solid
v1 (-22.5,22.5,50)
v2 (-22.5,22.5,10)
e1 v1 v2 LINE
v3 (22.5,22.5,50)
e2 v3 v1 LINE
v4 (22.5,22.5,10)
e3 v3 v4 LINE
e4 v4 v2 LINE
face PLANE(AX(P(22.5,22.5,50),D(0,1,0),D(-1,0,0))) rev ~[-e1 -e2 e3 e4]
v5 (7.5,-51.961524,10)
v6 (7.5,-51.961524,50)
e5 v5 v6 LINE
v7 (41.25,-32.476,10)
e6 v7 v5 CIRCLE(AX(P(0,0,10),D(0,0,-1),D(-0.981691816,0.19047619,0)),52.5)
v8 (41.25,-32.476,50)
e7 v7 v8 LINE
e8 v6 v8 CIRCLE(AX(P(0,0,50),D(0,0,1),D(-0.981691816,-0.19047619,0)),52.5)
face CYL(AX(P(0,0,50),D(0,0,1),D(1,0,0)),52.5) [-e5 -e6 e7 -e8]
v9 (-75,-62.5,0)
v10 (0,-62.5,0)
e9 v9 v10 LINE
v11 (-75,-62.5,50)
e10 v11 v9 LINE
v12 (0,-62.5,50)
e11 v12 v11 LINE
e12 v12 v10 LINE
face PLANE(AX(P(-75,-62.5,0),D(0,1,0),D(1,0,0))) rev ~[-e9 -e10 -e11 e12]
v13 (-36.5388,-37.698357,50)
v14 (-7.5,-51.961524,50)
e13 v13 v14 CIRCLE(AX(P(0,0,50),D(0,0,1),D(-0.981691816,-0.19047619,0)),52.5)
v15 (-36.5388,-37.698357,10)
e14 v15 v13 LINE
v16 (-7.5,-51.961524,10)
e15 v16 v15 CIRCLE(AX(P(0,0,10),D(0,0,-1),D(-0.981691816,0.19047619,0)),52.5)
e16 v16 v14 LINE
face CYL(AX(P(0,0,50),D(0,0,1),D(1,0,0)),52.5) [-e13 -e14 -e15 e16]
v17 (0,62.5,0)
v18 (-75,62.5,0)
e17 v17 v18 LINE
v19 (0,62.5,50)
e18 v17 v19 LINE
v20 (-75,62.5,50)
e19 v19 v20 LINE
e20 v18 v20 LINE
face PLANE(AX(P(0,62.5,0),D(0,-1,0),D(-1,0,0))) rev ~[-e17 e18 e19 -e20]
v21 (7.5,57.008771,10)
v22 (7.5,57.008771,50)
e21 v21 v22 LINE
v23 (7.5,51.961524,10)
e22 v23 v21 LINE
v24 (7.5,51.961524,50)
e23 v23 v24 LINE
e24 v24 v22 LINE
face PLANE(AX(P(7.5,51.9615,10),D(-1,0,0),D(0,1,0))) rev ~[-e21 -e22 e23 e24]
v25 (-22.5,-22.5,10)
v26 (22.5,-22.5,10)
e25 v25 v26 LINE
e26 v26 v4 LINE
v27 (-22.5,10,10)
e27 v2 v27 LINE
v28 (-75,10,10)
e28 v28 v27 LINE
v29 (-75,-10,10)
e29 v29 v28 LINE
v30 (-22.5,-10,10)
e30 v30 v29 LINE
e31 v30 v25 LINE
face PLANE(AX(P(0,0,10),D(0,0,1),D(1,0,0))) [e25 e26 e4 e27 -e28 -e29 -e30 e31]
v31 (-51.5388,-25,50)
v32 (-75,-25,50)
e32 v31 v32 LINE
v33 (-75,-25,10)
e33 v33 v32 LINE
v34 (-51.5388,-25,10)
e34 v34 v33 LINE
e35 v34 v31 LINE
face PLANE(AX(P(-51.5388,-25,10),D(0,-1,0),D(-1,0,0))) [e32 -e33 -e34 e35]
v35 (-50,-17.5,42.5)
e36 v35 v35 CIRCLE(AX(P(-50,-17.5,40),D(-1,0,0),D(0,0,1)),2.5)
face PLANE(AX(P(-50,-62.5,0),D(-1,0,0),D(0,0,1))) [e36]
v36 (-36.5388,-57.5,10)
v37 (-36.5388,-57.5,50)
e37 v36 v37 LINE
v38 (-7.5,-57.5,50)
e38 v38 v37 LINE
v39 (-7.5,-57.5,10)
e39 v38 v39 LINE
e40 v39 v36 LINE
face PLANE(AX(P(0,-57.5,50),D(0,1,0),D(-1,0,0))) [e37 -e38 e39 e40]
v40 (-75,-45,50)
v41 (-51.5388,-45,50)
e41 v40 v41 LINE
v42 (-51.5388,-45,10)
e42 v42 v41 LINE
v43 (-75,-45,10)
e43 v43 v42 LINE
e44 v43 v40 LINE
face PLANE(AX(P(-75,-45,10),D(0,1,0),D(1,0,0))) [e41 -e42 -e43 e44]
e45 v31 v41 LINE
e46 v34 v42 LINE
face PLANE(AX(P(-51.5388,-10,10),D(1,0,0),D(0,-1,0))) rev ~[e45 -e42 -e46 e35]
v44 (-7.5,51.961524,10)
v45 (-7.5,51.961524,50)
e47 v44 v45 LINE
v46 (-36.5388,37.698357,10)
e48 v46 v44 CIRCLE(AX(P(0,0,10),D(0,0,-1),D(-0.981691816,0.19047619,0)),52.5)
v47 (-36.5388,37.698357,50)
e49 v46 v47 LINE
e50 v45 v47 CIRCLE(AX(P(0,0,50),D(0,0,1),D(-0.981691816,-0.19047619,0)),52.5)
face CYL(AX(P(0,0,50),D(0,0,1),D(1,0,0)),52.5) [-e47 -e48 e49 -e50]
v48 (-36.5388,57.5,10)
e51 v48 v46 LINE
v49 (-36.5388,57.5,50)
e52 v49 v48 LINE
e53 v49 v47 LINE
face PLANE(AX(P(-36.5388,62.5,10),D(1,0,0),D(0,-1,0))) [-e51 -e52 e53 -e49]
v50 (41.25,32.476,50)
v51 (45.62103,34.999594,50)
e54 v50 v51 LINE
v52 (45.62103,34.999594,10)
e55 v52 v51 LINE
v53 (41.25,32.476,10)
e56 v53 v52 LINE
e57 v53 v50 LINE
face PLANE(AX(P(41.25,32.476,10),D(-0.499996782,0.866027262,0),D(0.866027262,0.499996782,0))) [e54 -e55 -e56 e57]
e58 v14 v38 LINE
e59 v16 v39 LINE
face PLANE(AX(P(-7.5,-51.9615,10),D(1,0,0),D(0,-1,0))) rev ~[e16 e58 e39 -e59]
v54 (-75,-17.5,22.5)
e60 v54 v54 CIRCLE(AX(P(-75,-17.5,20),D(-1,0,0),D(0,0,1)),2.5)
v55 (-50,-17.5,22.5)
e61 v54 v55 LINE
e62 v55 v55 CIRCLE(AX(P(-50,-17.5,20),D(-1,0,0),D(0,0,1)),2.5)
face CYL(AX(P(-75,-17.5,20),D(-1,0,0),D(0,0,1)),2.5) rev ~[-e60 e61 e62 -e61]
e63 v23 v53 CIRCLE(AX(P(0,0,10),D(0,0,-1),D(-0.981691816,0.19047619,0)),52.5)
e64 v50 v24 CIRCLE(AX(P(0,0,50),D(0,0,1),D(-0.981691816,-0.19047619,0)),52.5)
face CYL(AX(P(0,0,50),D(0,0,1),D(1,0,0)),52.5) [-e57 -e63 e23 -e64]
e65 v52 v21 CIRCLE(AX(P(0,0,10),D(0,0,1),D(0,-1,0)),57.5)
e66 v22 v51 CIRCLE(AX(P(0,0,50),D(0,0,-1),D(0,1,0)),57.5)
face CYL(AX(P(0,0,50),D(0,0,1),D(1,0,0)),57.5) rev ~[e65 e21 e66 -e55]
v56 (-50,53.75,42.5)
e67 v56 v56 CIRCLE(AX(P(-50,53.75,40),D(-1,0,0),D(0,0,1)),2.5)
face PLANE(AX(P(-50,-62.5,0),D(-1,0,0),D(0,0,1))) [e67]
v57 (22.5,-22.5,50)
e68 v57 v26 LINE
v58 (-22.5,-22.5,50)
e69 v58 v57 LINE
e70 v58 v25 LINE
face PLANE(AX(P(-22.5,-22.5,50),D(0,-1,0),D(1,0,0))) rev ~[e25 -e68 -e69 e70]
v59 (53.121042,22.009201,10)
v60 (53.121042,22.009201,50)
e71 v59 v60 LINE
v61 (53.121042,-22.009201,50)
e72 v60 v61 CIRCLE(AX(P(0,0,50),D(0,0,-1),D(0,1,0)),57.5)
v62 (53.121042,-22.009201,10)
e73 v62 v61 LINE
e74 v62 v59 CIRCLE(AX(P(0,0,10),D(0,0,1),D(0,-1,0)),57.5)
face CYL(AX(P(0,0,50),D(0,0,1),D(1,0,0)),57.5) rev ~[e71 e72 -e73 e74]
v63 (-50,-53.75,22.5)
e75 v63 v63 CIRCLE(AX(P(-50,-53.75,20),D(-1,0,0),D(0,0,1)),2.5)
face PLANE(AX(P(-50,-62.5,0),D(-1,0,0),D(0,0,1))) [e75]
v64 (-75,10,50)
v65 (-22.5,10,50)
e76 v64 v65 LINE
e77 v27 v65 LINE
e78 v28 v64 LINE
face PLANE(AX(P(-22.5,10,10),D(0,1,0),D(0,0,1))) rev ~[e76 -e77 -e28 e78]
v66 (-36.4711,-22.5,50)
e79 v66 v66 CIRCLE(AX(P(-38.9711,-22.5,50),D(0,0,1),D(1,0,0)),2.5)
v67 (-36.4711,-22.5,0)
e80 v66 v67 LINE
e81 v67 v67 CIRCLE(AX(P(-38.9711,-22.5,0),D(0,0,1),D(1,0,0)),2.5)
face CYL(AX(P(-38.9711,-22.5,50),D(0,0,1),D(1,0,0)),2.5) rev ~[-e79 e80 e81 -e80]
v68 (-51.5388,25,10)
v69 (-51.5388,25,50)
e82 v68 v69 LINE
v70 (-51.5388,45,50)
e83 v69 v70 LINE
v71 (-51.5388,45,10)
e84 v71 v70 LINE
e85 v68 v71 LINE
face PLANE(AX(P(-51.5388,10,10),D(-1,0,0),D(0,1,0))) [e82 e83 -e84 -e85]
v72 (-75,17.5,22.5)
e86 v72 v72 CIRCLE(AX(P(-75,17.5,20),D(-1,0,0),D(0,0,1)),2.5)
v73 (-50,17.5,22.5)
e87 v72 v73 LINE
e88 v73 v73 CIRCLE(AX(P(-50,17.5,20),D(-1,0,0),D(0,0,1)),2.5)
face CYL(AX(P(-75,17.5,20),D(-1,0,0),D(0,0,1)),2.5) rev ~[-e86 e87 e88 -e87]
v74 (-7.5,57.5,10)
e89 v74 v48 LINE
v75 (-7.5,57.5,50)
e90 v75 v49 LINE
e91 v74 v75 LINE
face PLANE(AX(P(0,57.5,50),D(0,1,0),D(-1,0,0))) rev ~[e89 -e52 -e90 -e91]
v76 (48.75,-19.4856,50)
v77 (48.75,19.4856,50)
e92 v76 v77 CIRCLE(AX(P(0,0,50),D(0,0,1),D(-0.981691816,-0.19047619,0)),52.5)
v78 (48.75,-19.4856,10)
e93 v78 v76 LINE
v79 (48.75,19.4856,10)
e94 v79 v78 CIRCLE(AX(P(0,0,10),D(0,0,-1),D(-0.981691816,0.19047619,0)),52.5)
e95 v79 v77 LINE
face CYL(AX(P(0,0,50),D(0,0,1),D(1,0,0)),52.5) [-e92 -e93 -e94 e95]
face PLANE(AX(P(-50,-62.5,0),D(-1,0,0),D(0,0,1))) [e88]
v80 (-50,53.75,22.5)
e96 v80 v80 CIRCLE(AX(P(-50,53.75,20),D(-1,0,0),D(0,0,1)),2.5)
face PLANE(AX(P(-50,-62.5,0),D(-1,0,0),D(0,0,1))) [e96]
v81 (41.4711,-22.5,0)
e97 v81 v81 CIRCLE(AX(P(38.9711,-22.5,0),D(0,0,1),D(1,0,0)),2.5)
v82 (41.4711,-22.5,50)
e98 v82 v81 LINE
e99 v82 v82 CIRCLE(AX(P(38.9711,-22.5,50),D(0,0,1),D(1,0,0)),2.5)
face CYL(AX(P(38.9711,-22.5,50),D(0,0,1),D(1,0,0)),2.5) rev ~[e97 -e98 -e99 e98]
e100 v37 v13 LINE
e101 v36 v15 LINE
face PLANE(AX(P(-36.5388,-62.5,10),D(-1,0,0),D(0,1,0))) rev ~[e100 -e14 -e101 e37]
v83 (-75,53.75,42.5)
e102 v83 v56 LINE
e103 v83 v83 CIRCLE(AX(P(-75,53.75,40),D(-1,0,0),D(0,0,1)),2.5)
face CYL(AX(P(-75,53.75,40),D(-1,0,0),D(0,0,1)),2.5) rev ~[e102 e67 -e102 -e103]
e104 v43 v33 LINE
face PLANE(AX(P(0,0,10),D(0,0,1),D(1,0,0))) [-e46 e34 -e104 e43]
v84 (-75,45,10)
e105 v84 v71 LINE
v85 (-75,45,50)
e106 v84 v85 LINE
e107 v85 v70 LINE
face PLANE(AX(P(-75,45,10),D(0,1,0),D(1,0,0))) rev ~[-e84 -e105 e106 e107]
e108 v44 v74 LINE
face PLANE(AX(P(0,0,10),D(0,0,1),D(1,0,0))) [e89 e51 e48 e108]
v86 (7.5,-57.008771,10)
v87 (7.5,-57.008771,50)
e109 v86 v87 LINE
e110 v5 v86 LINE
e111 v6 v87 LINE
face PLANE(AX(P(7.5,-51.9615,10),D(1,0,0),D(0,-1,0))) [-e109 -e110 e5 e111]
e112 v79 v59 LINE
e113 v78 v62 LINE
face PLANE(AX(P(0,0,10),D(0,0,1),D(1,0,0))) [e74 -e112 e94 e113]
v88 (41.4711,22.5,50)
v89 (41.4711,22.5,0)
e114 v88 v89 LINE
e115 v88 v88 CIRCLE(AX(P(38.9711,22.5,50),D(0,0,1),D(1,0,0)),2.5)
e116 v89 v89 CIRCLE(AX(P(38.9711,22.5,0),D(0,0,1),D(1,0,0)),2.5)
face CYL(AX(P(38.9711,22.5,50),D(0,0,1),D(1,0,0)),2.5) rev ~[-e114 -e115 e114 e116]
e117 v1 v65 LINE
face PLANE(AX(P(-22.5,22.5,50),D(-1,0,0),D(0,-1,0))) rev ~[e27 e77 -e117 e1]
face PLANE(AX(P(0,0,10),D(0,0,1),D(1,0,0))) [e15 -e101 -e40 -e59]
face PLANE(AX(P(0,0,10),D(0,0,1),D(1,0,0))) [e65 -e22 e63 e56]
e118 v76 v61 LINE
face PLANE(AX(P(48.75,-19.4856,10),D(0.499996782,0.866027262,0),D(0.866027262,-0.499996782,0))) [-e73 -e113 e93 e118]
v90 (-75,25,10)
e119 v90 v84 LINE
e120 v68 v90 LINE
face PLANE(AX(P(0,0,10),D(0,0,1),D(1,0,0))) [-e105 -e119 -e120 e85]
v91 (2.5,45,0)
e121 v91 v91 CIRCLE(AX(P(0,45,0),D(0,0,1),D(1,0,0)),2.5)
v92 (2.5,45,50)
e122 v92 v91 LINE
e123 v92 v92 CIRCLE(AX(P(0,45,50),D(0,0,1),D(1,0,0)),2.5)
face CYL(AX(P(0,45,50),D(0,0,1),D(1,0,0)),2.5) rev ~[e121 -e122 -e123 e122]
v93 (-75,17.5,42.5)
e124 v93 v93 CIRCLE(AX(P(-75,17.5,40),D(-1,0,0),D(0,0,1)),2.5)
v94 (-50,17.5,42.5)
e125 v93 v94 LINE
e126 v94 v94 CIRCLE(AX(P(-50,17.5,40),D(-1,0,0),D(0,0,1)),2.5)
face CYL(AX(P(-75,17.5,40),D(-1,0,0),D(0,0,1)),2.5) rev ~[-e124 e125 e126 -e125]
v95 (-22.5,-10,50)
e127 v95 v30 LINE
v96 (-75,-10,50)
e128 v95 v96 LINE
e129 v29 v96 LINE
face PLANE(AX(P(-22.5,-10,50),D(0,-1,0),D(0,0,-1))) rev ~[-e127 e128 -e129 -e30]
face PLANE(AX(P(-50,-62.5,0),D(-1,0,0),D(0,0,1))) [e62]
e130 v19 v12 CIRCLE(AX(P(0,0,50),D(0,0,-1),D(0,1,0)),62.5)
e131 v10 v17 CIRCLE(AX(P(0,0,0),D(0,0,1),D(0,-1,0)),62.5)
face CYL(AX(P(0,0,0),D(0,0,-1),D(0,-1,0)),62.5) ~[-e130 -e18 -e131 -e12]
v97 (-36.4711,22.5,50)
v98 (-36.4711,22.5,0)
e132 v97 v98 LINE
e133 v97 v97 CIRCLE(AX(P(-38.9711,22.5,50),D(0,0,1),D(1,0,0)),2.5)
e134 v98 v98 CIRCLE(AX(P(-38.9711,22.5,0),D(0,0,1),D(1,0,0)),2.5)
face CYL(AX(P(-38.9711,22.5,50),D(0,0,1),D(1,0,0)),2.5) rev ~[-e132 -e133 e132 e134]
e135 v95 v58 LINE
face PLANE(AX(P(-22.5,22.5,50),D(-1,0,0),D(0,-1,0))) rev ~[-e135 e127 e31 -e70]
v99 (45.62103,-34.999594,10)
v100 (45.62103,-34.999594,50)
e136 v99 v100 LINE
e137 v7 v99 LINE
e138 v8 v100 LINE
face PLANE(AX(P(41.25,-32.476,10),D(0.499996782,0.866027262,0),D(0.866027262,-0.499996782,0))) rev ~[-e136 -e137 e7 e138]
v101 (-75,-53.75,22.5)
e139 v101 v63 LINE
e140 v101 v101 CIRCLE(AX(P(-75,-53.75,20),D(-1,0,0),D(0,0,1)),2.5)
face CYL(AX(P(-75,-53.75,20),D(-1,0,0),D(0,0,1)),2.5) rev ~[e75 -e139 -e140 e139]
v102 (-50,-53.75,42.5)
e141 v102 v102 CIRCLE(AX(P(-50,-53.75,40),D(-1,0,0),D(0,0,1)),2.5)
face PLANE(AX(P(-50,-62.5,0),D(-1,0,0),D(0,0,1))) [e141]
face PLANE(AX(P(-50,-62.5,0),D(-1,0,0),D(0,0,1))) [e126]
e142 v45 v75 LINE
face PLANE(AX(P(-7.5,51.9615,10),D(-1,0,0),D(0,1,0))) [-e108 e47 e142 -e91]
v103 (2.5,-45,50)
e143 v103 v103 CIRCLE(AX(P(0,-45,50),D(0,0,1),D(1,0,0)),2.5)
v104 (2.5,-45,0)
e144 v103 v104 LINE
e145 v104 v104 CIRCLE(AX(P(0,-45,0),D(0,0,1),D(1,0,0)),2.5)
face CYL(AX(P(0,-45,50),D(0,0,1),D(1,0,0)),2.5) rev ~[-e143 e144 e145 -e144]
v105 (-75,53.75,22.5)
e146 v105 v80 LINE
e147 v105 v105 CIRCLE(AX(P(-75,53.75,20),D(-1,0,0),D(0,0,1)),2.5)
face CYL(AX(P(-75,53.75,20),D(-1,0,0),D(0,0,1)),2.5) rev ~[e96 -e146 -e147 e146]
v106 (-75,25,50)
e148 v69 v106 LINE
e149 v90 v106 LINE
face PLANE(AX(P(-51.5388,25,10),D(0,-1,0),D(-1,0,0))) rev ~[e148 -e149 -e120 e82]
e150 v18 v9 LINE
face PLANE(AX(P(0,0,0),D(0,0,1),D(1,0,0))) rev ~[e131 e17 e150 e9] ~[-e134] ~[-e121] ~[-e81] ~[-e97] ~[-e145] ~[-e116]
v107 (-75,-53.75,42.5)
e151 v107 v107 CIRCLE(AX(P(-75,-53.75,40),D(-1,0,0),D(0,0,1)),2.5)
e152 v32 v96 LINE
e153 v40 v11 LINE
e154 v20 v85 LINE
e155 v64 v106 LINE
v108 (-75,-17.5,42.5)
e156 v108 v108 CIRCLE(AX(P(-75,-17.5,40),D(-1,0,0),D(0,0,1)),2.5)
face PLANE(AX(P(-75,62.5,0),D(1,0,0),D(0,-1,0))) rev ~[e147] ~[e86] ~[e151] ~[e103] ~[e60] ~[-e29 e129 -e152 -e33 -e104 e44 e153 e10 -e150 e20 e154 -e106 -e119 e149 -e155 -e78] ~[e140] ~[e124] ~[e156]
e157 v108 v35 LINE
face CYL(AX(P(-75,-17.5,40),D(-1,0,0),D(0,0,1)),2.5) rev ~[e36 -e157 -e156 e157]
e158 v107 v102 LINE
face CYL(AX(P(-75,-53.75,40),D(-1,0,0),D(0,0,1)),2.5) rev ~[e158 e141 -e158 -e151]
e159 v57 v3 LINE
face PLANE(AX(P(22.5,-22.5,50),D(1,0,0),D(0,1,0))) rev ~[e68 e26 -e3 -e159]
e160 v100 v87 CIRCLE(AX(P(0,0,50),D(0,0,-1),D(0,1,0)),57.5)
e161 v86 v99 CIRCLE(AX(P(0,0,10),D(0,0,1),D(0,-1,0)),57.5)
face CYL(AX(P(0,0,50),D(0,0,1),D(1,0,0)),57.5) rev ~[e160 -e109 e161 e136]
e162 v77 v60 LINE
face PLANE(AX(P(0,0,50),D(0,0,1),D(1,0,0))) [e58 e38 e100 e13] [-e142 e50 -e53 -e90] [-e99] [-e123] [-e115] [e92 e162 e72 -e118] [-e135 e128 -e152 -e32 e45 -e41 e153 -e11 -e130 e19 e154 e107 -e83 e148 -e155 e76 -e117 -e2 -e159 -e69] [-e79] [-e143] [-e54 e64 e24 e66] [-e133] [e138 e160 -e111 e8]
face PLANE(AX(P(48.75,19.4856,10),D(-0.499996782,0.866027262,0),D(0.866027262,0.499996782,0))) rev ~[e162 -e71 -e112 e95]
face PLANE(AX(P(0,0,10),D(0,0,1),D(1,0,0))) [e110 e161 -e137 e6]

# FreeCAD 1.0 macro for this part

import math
import FreeCAD as App
import Part
import Sketcher

V = App.Vector
Q = App.Units.Quantity

doc = App.newDocument("Part")
body = doc.addObject("PartDesign::Body", "Body")

# Sketch on XY plane
sketch1 = body.newObject("Sketcher::SketchObject", "Sketch")
sketch1.AttachmentSupport = (doc.getObject("XY_Plane"), [""])
sketch1.MapMode = "FlatFace"
sketch1.addGeometry([
    Part.ArcOfCircle(Part.Circle(V(0, 0, 0), V(0, 0, 1), 62), math.radians(-90), math.radians(90)),
    Part.LineSegment(V(0, 62, 0), V(-75, 62, 0)),
    Part.LineSegment(V(-75, 62, 0), V(-75, -62, 0)),
    Part.LineSegment(V(-75, -62, 0), V(0, -62, 0)),
], False)
sketch1.addConstraint([
    Sketcher.Constraint("Tangent", 0, 2, 1, 1),
    Sketcher.Constraint("Coincident", 1, 2, 2, 1),
    Sketcher.Constraint("Coincident", 2, 2, 3, 1),
    Sketcher.Constraint("Tangent", 3, 2, 0, 1),
    Sketcher.Constraint("Horizontal", 1),
    Sketcher.Constraint("Vertical", 2),
    Sketcher.Constraint("Horizontal", 3),
    Sketcher.Constraint("Coincident", 0, 3, -1, 1),
    Sketcher.Constraint("Radius", 0, Q("62.5 mm")),
    Sketcher.Constraint("DistanceX", 1, 2, 1, 1, Q("75 mm")),
])
pad1 = body.newObject("PartDesign::Pad", "Pad")
pad1.Profile = sketch1
pad1.Length = 50

# Sketch on XY plane
sketch2 = body.newObject("Sketcher::SketchObject", "Sketch001")
sketch2.AttachmentSupport = (doc.getObject("XY_Plane"), [""])
sketch2.MapMode = "FlatFace"
sketch2.AttachmentOffset = App.Placement(V(0, 0, 50), App.Rotation())
sketch2.addGeometry([
    Part.LineSegment(V(-22, 22, 0), V(-22, -22, 0)),
    Part.LineSegment(V(-22, -22, 0), V(22, -22, 0)),
    Part.LineSegment(V(22, -22, 0), V(22, 22, 0)),
    Part.LineSegment(V(22, 22, 0), V(-22, 22, 0)),
], False)
sketch2.addConstraint([
    Sketcher.Constraint("Coincident", 0, 2, 1, 1),
    Sketcher.Constraint("Coincident", 1, 2, 2, 1),
    Sketcher.Constraint("Coincident", 2, 2, 3, 1),
    Sketcher.Constraint("Coincident", 3, 2, 0, 1),
    Sketcher.Constraint("Vertical", 0),
    Sketcher.Constraint("Horizontal", 1),
    Sketcher.Constraint("Vertical", 2),
    Sketcher.Constraint("Horizontal", 3),
    Sketcher.Constraint("Symmetric", 0, 2, 2, 2, -1, 1),
    Sketcher.Constraint("Equal", 3, 0),
    Sketcher.Constraint("DistanceX", 1, 1, 1, 2, Q("45 mm")),
])
pocket1 = body.newObject("PartDesign::Pocket", "Pocket")
pocket1.Profile = sketch2
pocket1.Length = 40

# Sketch on YZ plane
sketch3 = body.newObject("Sketcher::SketchObject", "Sketch002")
sketch3.AttachmentSupport = (doc.getObject("YZ_Plane"), [""])
sketch3.MapMode = "FlatFace"
sketch3.AttachmentOffset = App.Placement(V(0, 0, -22.5), App.Rotation())
sketch3.addGeometry([
    Part.LineSegment(V(-10, 10, 0), V(10, 10, 0)),
    Part.LineSegment(V(10, 10, 0), V(10, 50, 0)),
    Part.LineSegment(V(10, 50, 0), V(-10, 50, 0)),
    Part.LineSegment(V(-10, 50, 0), V(-10, 10, 0)),
], False)
sketch3.addConstraint([
    Sketcher.Constraint("Coincident", 0, 2, 1, 1),
    Sketcher.Constraint("Coincident", 1, 2, 2, 1),
    Sketcher.Constraint("Coincident", 2, 2, 3, 1),
    Sketcher.Constraint("Coincident", 3, 2, 0, 1),
    Sketcher.Constraint("Horizontal", 0),
    Sketcher.Constraint("Vertical", 1),
    Sketcher.Constraint("Horizontal", 2),
    Sketcher.Constraint("Vertical", 3),
    Sketcher.Constraint("DistanceX", 0, 1, 0, 2, Q("20 mm")),
    Sketcher.Constraint("DistanceY", 1, 1, 1, 2, Q("40 mm")),
    Sketcher.Constraint("DistanceX", -1, 1, 0, 2, Q("10 mm")),
    Sketcher.Constraint("DistanceY", -1, 1, 0, 2, Q("10 mm")),
])
pocket2 = body.newObject("PartDesign::Pocket", "Pocket001")
pocket2.Profile = sketch3
pocket2.Type = "ThroughAll"

# Sketch on XY plane
sketch4 = body.newObject("Sketcher::SketchObject", "Sketch003")
sketch4.AttachmentSupport = (doc.getObject("XY_Plane"), [""])
sketch4.MapMode = "FlatFace"
sketch4.AttachmentOffset = App.Placement(V(0, 0, 50), App.Rotation())
sketch4.addGeometry([
    Part.Circle(V(0, 45, 0), V(0, 0, 1), 2.5),  # 0
    Part.Circle(V(-39, 22.5, 0), V(0, 0, 1), 2.5),  # 1
    Part.Circle(V(-39, -22.5, 0), V(0, 0, 1), 2.5),  # 2
    Part.Circle(V(0, -45, 0), V(0, 0, 1), 2.5),  # 3
    Part.Circle(V(39, -22.5, 0), V(0, 0, 1), 2.5),  # 4
    Part.Circle(V(39, 22.5, 0), V(0, 0, 1), 2.5),  # 5
], False)
sketch4.addConstraint([
    Sketcher.Constraint("Equal", 0, 1),
    Sketcher.Constraint("Equal", 1, 2),
    Sketcher.Constraint("Equal", 2, 3),
    Sketcher.Constraint("Equal", 3, 4),
    Sketcher.Constraint("Equal", 4, 5),
    Sketcher.Constraint("Symmetric", 0, 3, 3, 3, -1, 1),
    Sketcher.Constraint("Symmetric", 1, 3, 4, 3, -1, 1),
    Sketcher.Constraint("Symmetric", 2, 3, 5, 3, -1, 1),
    Sketcher.Constraint("Symmetric", 2, 3, 4, 3, -2),
    Sketcher.Constraint("PointOnObject", 0, 3, -2),
    Sketcher.Constraint("Diameter", 0, Q("5 mm")),
    Sketcher.Constraint("DistanceY", -1, 1, 0, 3, Q("45 mm")),
    Sketcher.Constraint("DistanceY", 2, 3, 1, 3, Q("45 mm")),
    Sketcher.Constraint("DistanceX", 1, 3, -1, 1, Q("38.971 mm")),
])
pocket3 = body.newObject("PartDesign::Pocket", "Pocket002")
pocket3.Profile = sketch4
pocket3.Type = "ThroughAll"

# Sketch on XY plane
sketch5 = body.newObject("Sketcher::SketchObject", "Sketch004")
sketch5.AttachmentSupport = (doc.getObject("XY_Plane"), [""])
sketch5.MapMode = "FlatFace"
sketch5.AttachmentOffset = App.Placement(V(0, 0, 50), App.Rotation())
sketch5.addGeometry([
    Part.ArcOfCircle(Part.Circle(V(0, 0, 0), V(0, 0, 1), 58), math.radians(-90), math.radians(90)),  # 0
    Part.LineSegment(V(0, 58, 0), V(-75, 58, 0)),  # 1
    Part.LineSegment(V(-75, 58, 0), V(-75, -58, 0)),  # 2
    Part.LineSegment(V(-75, -58, 0), V(0, -58, 0)),  # 3
    Part.Circle(V(0, 0, 0), V(0, 0, 1), 52),  # 4
], False)
sketch5.addConstraint([
    Sketcher.Constraint("Tangent", 0, 2, 1, 1),
    Sketcher.Constraint("Coincident", 1, 2, 2, 1),
    Sketcher.Constraint("Coincident", 2, 2, 3, 1),
    Sketcher.Constraint("Tangent", 3, 2, 0, 1),
    Sketcher.Constraint("Horizontal", 1),
    Sketcher.Constraint("Vertical", 2),
    Sketcher.Constraint("Horizontal", 3),
    Sketcher.Constraint("Coincident", 0, 3, -1, 1),
    Sketcher.Constraint("Coincident", 4, 3, -1, 1),
    Sketcher.Constraint("Diameter", 4, Q("105 mm")),
    Sketcher.Constraint("Radius", 0, Q("57.5 mm")),
    Sketcher.Constraint("DistanceX", 1, 2, 1, 1, Q("75 mm")),
])
pocket4 = body.newObject("PartDesign::Pocket", "Pocket003")
pocket4.Profile = sketch5
pocket4.Length = 40

# Sketch on XY plane
sketch6 = body.newObject("Sketcher::SketchObject", "Sketch005")
sketch6.AttachmentSupport = (doc.getObject("XY_Plane"), [""])
sketch6.MapMode = "FlatFace"
sketch6.AttachmentOffset = App.Placement(V(0, 0, 10), App.Rotation())
sketch6.addGeometry([
    Part.LineSegment(V(57, -25, 0), V(49, -19, 0)),  # 0
    Part.ArcOfCircle(Part.Circle(V(0, 0, 0), V(0, 0, 1), 52), math.radians(-38.21), math.radians(-21.79)),  # 1
    Part.LineSegment(V(41, -32, 0), V(50, -38, 0)),  # 2
    Part.ArcOfCircle(Part.Circle(V(0, 0, 0), V(0, 0, 1), 62), math.radians(-36.89), math.radians(-23.11)),  # 3
    Part.ArcOfCircle(Part.Circle(V(0, 0, 0), V(0, 0, 1), 53), math.radians(21.79), math.radians(38.21)),  # 4
    Part.LineSegment(V(49, 19, 0), V(57, 25, 0)),  # 5
    Part.ArcOfCircle(Part.Circle(V(0, 0, 0), V(0, 0, 1), 62), math.radians(23.11), math.radians(36.89)),  # 6
    Part.LineSegment(V(50, 38, 0), V(41, 32, 0)),  # 7
    Part.LineSegment(V(8, -62, 0), V(8, -52, 0)),  # 8
    Part.ArcOfCircle(Part.Circle(V(0, 0, 0), V(0, 0, 1), 52), math.radians(-98.21), math.radians(-81.79)),  # 9
    Part.LineSegment(V(-8, -52, 0), V(-8, -62, 0)),  # 10
    Part.LineSegment(V(-8, -62, 0), V(0, -62, 0)),  # 11
    Part.ArcOfCircle(Part.Circle(V(0, 0, 0), V(0, 0, 1), 62), math.radians(-90), math.radians(-83.11)),  # 12
    Part.ArcOfCircle(Part.Circle(V(0, 0, 0), V(0, 0, 1), 52), math.radians(81.79), math.radians(98.21)),  # 13
    Part.LineSegment(V(8, 52, 0), V(8, 62, 0)),  # 14
    Part.ArcOfCircle(Part.Circle(V(0, 0, 0), V(0, 0, 1), 62), math.radians(83.11), math.radians(90)),  # 15
    Part.LineSegment(V(0, 62, 0), V(-8, 62, 0)),  # 16
    Part.LineSegment(V(-8, 62, 0), V(-8, 52, 0)),  # 17
], False)
sketch6.addConstraint([
    Sketcher.Constraint("Coincident", 0, 2, 1, 2),
    Sketcher.Constraint("Coincident", 1, 1, 2, 1),
    Sketcher.Constraint("Coincident", 2, 2, 3, 1),
    Sketcher.Constraint("Coincident", 3, 2, 0, 1),
    Sketcher.Constraint("Coincident", 4, 1, 5, 1),
    Sketcher.Constraint("Coincident", 5, 2, 6, 1),
    Sketcher.Constraint("Coincident", 6, 2, 7, 1),
    Sketcher.Constraint("Coincident", 7, 2, 4, 2),
    Sketcher.Constraint("Coincident", 8, 2, 9, 2),
    Sketcher.Constraint("Coincident", 9, 1, 10, 1),
    Sketcher.Constraint("Coincident", 10, 2, 11, 1),
    Sketcher.Constraint("Tangent", 11, 2, 12, 1),
    Sketcher.Constraint("Coincident", 12, 2, 8, 1),
    Sketcher.Constraint("Coincident", 13, 1, 14, 1),
    Sketcher.Constraint("Coincident", 14, 2, 15, 1),
    Sketcher.Constraint("Tangent", 15, 2, 16, 1),
    Sketcher.Constraint("Coincident", 16, 2, 17, 1),
    Sketcher.Constraint("Coincident", 17, 2, 13, 2),
    Sketcher.Constraint("Vertical", 8),
    Sketcher.Constraint("Vertical", 10),
    Sketcher.Constraint("Horizontal", 11),
    Sketcher.Constraint("Vertical", 14),
    Sketcher.Constraint("Horizontal", 16),
    Sketcher.Constraint("Vertical", 17),
    Sketcher.Constraint("Coincident", 1, 3, -1, 1),
    Sketcher.Constraint("Coincident", 3, 3, -1, 1),
    Sketcher.Constraint("Coincident", 4, 3, -1, 1),
    Sketcher.Constraint("Coincident", 6, 3, -1, 1),
    Sketcher.Constraint("Coincident", 9, 3, -1, 1),
    Sketcher.Constraint("Coincident", 12, 3, -1, 1),
    Sketcher.Constraint("Coincident", 13, 3, -1, 1),
    Sketcher.Constraint("Coincident", 15, 3, -1, 1),
    Sketcher.Constraint("Equal", 1, 4),
    Sketcher.Constraint("Equal", 3, 6),
    Sketcher.Constraint("Equal", 4, 9),
    Sketcher.Constraint("Equal", 6, 12),
    Sketcher.Constraint("Equal", 9, 13),
    Sketcher.Constraint("Equal", 12, 15),
    Sketcher.Constraint("Parallel", 0, 2),
    Sketcher.Constraint("Parallel", 5, 7),
    Sketcher.Constraint("Horizontal", 8, 2, 9, 1),
    Sketcher.Constraint("Horizontal", 13, 1, 17, 2),
    Sketcher.Constraint("Vertical", 0, 2, 4, 1),
    Sketcher.Constraint("Vertical", 3, 2, 5, 2),
    Sketcher.Constraint("Vertical", 2, 2, 6, 2),
    Sketcher.Constraint("Vertical", 12, 2, 13, 1),
    Sketcher.Constraint("Equal", 0, 2),
    Sketcher.Constraint("Radius", 1, Q("52.5 mm")),
    Sketcher.Constraint("Angle", 2, Q("-29.9998 deg")),
    Sketcher.Constraint("DistanceX", 9, 1, 8, 2, Q("15 mm")),
    Sketcher.Constraint("Radius", 3, Q("62.5 mm")),
    Sketcher.Constraint("DistanceX", 1, 1, 0, 2, Q("7.5 mm")),
])
pad2 = body.newObject("PartDesign::Pad", "Pad001")
pad2.Profile = sketch6
pad2.Length = 40

# Sketch on XY plane
sketch7 = body.newObject("Sketcher::SketchObject", "Sketch006")
sketch7.AttachmentSupport = (doc.getObject("XY_Plane"), [""])
sketch7.MapMode = "FlatFace"
sketch7.AttachmentOffset = App.Placement(V(0, 0, 10), App.Rotation())
sketch7.addGeometry([
    Part.LineSegment(V(-52, 62, 0), V(-52, 10, 0)),  # 0
    Part.ArcOfCircle(Part.Circle(V(0, 0, 0), V(0, 0, 1), 52), math.radians(134), math.radians(169)),  # 1
    Part.LineSegment(V(-37, 38, 0), V(-37, 62, 0)),  # 2
    Part.LineSegment(V(-37, 62, 0), V(-52, 62, 0)),  # 3
    Part.ArcOfCircle(Part.Circle(V(0, 0, 0), V(0, 0, 1), 52), math.radians(-169), math.radians(-134)),  # 4
    Part.LineSegment(V(-52, -10, 0), V(-52, -62, 0)),  # 5
    Part.LineSegment(V(-52, -62, 0), V(-37, -62, 0)),  # 6
    Part.LineSegment(V(-37, -62, 0), V(-37, -38, 0)),  # 7
], False)
sketch7.addConstraint([
    Sketcher.Constraint("Coincident", 0, 2, 1, 2),
    Sketcher.Constraint("Coincident", 1, 1, 2, 1),
    Sketcher.Constraint("Coincident", 2, 2, 3, 1),
    Sketcher.Constraint("Coincident", 3, 2, 0, 1),
    Sketcher.Constraint("Coincident", 4, 1, 5, 1),
    Sketcher.Constraint("Coincident", 5, 2, 6, 1),
    Sketcher.Constraint("Coincident", 6, 2, 7, 1),
    Sketcher.Constraint("Coincident", 7, 2, 4, 2),
    Sketcher.Constraint("Vertical", 0),
    Sketcher.Constraint("Vertical", 2),
    Sketcher.Constraint("Horizontal", 3),
    Sketcher.Constraint("Vertical", 5),
    Sketcher.Constraint("Horizontal", 6),
    Sketcher.Constraint("Vertical", 7),
    Sketcher.Constraint("Coincident", 1, 3, -1, 1),
    Sketcher.Constraint("Coincident", 4, 3, -1, 1),
    Sketcher.Constraint("Equal", 1, 4),
    Sketcher.Constraint("Symmetric", 3, 2, 5, 2, -1),
    Sketcher.Constraint("Vertical", 2, 2, 6, 2),
    Sketcher.Constraint("DistanceX", 3, 2, 3, 1, Q("15 mm")),
    Sketcher.Constraint("Radius", 1, Q("52.5 mm")),
    Sketcher.Constraint("DistanceY", 0, 2, 0, 1, Q("52.5 mm")),
    Sketcher.Constraint("DistanceY", -1, 1, 0, 2, Q("10 mm")),
])
pad3 = body.newObject("PartDesign::Pad", "Pad002")
pad3.Profile = sketch7
pad3.Length = 40

# Sketch on XY plane
sketch8 = body.newObject("Sketcher::SketchObject", "Sketch007")
sketch8.AttachmentSupport = (doc.getObject("XY_Plane"), [""])
sketch8.MapMode = "FlatFace"
sketch8.AttachmentOffset = App.Placement(V(0, 0, 10), App.Rotation())
sketch8.addGeometry([
    Part.LineSegment(V(-52, -10, 0), V(-75, -10, 0)),  # 0
    Part.LineSegment(V(-75, -10, 0), V(-75, -25, 0)),  # 1
    Part.LineSegment(V(-75, -25, 0), V(-52, -25, 0)),  # 2
    Part.LineSegment(V(-52, -25, 0), V(-52, -10, 0)),  # 3
    Part.LineSegment(V(-52, 10, 0), V(-52, 25, 0)),  # 4
    Part.LineSegment(V(-52, 25, 0), V(-75, 25, 0)),  # 5
    Part.LineSegment(V(-75, 25, 0), V(-75, 10, 0)),  # 6
    Part.LineSegment(V(-75, 10, 0), V(-52, 10, 0)),  # 7
], False)
sketch8.addConstraint([
    Sketcher.Constraint("Coincident", 0, 2, 1, 1),
    Sketcher.Constraint("Coincident", 1, 2, 2, 1),
    Sketcher.Constraint("Coincident", 2, 2, 3, 1),
    Sketcher.Constraint("Coincident", 3, 2, 0, 1),
    Sketcher.Constraint("Coincident", 4, 2, 5, 1),
    Sketcher.Constraint("Coincident", 5, 2, 6, 1),
    Sketcher.Constraint("Coincident", 6, 2, 7, 1),
    Sketcher.Constraint("Coincident", 7, 2, 4, 1),
    Sketcher.Constraint("Horizontal", 0),
    Sketcher.Constraint("Vertical", 1),
    Sketcher.Constraint("Horizontal", 2),
    Sketcher.Constraint("Vertical", 3),
    Sketcher.Constraint("Vertical", 4),
    Sketcher.Constraint("Horizontal", 5),
    Sketcher.Constraint("Vertical", 6),
    Sketcher.Constraint("Horizontal", 7),
    Sketcher.Constraint("Symmetric", 2, 2, 4, 2, -1),
    Sketcher.Constraint("Symmetric", 0, 2, 6, 2, -1),
    Sketcher.Constraint("DistanceY", 1, 2, 1, 1, Q("15 mm")),
    Sketcher.Constraint("DistanceX", 0, 2, -1, 1, Q("75 mm")),
    Sketcher.Constraint("DistanceY", 0, 2, -1, 1, Q("10 mm")),
    Sketcher.Constraint("DistanceX", 0, 2, 0, 1, Q("23.4612 mm")),
])
pad4 = body.newObject("PartDesign::Pad", "Pad003")
pad4.Profile = sketch8
pad4.Length = 40

# Sketch on XY plane
sketch9 = body.newObject("Sketcher::SketchObject", "Sketch008")
sketch9.AttachmentSupport = (doc.getObject("XY_Plane"), [""])
sketch9.MapMode = "FlatFace"
sketch9.AttachmentOffset = App.Placement(V(0, 0, 10), App.Rotation())
sketch9.addGeometry([
    Part.LineSegment(V(-52, -45, 0), V(-75, -45, 0)),  # 0
    Part.LineSegment(V(-75, -45, 0), V(-75, -62, 0)),  # 1
    Part.LineSegment(V(-75, -62, 0), V(-52, -62, 0)),  # 2
    Part.LineSegment(V(-52, -62, 0), V(-52, -45, 0)),  # 3
    Part.LineSegment(V(-52, 62, 0), V(-75, 62, 0)),  # 4
    Part.LineSegment(V(-75, 62, 0), V(-75, 45, 0)),  # 5
    Part.LineSegment(V(-75, 45, 0), V(-52, 45, 0)),  # 6
    Part.LineSegment(V(-52, 45, 0), V(-52, 62, 0)),  # 7
], False)
sketch9.addConstraint([
    Sketcher.Constraint("Coincident", 0, 2, 1, 1),
    Sketcher.Constraint("Coincident", 1, 2, 2, 1),
    Sketcher.Constraint("Coincident", 2, 2, 3, 1),
    Sketcher.Constraint("Coincident", 3, 2, 0, 1),
    Sketcher.Constraint("Coincident", 4, 2, 5, 1),
    Sketcher.Constraint("Coincident", 5, 2, 6, 1),
    Sketcher.Constraint("Coincident", 6, 2, 7, 1),
    Sketcher.Constraint("Coincident", 7, 2, 4, 1),
    Sketcher.Constraint("Horizontal", 0),
    Sketcher.Constraint("Vertical", 1),
    Sketcher.Constraint("Horizontal", 2),
    Sketcher.Constraint("Vertical", 3),
    Sketcher.Constraint("Horizontal", 4),
    Sketcher.Constraint("Vertical", 5),
    Sketcher.Constraint("Horizontal", 6),
    Sketcher.Constraint("Vertical", 7),
    Sketcher.Constraint("Symmetric", 1, 2, 4, 2, -1),
    Sketcher.Constraint("Symmetric", 3, 2, 6, 2, -1),
    Sketcher.Constraint("DistanceY", 1, 2, 1, 1, Q("17.5 mm")),
    Sketcher.Constraint("DistanceX", 0, 2, -1, 1, Q("75 mm")),
    Sketcher.Constraint("DistanceY", 0, 2, -1, 1, Q("45 mm")),
    Sketcher.Constraint("DistanceX", 0, 2, 0, 1, Q("23.4612 mm")),
])
pad5 = body.newObject("PartDesign::Pad", "Pad004")
pad5.Profile = sketch9
pad5.Length = 40

# Sketch on YZ plane
sketch10 = body.newObject("Sketcher::SketchObject", "Sketch009")
sketch10.AttachmentSupport = (doc.getObject("YZ_Plane"), [""])
sketch10.MapMode = "FlatFace"
sketch10.AttachmentOffset = App.Placement(V(0, 0, -75), App.Rotation())
sketch10.addGeometry([
    Part.Circle(V(-17.5, 40, 0), V(0, 0, 1), 2.5),  # 0
    Part.Circle(V(-17.5, 20, 0), V(0, 0, 1), 2.5),  # 1
    Part.Circle(V(17.5, 40, 0), V(0, 0, 1), 2.5),  # 2
    Part.Circle(V(17.5, 20, 0), V(0, 0, 1), 2.5),  # 3
    Part.Circle(V(53.8, 20, 0), V(0, 0, 1), 2.5),  # 4
    Part.Circle(V(-53.8, 20, 0), V(0, 0, 1), 2.5),  # 5
    Part.Circle(V(-53.8, 40, 0), V(0, 0, 1), 2.5),  # 6
    Part.Circle(V(53.8, 40, 0), V(0, 0, 1), 2.5),  # 7
], False)
sketch10.addConstraint([
    Sketcher.Constraint("Equal", 0, 1),
    Sketcher.Constraint("Equal", 1, 2),
    Sketcher.Constraint("Equal", 2, 3),
    Sketcher.Constraint("Equal", 3, 4),
    Sketcher.Constraint("Equal", 4, 5),
    Sketcher.Constraint("Equal", 5, 6),
    Sketcher.Constraint("Equal", 6, 7),
    Sketcher.Constraint("Symmetric", 0, 3, 2, 3, -2),
    Sketcher.Constraint("Symmetric", 1, 3, 3, 3, -2),
    Sketcher.Constraint("Symmetric", 4, 3, 5, 3, -2),
    Sketcher.Constraint("Symmetric", 6, 3, 7, 3, -2),
    Sketcher.Constraint("Horizontal", 3, 3, 4, 3),
    Sketcher.Constraint("Horizontal", 2, 3, 6, 3),
    Sketcher.Constraint("Vertical", 0, 3, 1, 3),
    Sketcher.Constraint("Vertical", 5, 3, 6, 3),
    Sketcher.Constraint("Diameter", 0, Q("5 mm")),
    Sketcher.Constraint("DistanceY", -1, 1, 1, 3, Q("20 mm")),
    Sketcher.Constraint("DistanceY", 1, 3, 0, 3, Q("20 mm")),
    Sketcher.Constraint("DistanceX", 0, 3, 2, 3, Q("35 mm")),
    Sketcher.Constraint("DistanceX", 5, 3, 4, 3, Q("107.5 mm")),
])
pocket5 = body.newObject("PartDesign::Pocket", "Pocket004")
pocket5.Profile = sketch10
pocket5.Length = 25
pocket5.Reversed = True

doc.recompute()
